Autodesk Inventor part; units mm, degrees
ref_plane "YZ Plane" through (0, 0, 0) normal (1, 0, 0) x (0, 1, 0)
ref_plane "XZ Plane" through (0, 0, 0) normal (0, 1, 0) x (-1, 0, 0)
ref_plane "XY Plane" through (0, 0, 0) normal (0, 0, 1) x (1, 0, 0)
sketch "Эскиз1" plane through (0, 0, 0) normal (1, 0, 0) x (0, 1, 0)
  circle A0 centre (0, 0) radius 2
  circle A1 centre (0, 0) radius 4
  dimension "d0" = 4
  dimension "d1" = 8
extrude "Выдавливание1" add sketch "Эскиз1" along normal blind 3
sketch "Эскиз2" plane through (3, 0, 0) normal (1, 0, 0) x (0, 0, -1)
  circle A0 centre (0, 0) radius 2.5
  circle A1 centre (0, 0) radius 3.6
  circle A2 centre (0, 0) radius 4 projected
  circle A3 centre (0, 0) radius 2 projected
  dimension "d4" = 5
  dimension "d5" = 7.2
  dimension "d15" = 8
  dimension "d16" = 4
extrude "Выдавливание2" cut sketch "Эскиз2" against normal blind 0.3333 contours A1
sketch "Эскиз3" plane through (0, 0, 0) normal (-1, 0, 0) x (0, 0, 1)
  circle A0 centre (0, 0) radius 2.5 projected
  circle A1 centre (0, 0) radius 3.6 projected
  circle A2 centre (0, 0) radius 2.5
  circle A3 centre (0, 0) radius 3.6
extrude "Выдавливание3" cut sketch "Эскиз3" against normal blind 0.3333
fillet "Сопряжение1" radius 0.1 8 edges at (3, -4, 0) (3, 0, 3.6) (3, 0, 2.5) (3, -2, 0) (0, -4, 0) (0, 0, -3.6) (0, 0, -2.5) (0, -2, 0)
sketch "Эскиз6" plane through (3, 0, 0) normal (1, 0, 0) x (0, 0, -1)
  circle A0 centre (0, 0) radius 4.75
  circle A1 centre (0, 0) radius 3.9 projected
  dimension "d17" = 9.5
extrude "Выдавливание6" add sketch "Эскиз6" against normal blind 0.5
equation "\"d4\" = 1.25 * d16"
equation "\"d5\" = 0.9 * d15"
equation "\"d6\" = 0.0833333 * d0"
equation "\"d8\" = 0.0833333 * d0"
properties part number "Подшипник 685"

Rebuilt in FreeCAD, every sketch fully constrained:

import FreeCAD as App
import Part
import Sketcher
from FreeCAD import Vector


def edges_at(feature, points):
    """Names of the edges that pass closest to the given points."""
    edges = feature.Shape.Edges
    near = lambda p: min(range(len(edges)), key=lambda i: edges[i].distToShape(Part.Vertex(*p))[0])
    return sorted({f"Edge{near(p) + 1}" for p in points})

doc = App.newDocument("Part")
body = doc.addObject("PartDesign::Body", "Body")

sketch1 = body.newObject("Sketcher::SketchObject", "Sketch")
sketch1.AttachmentSupport = (doc.getObject("YZ_Plane"), [""])
sketch1.MapMode = "FlatFace"
sketch1.addGeometry([
    Part.Circle(Vector(0, 0, 0), Vector(0, 0, 1), 4),
    Part.Circle(Vector(0, 0, 0), Vector(0, 0, 1), 2),
], False)
sketch1.addConstraint([
    Sketcher.Constraint("Coincident", 0, 3, -1, 1),
    Sketcher.Constraint("Coincident", 1, 3, -1, 1),
    Sketcher.Constraint("Diameter", 0, 8.0),
    Sketcher.Constraint("Diameter", 1, 4.0),
])
pad1 = body.newObject("PartDesign::Pad", "Pad")
pad1.Profile = sketch1
pad1.Length = 3

sketch2 = body.newObject("Sketcher::SketchObject", "Sketch001")
sketch2.AttachmentSupport = (doc.getObject("YZ_Plane"), [""])
sketch2.MapMode = "FlatFace"
sketch2.AttachmentOffset = App.Placement(Vector(0, 0, 3), App.Rotation())
sketch2.addGeometry([
    Part.Circle(Vector(0, 0, 0), Vector(0, 0, 1), 3.6),
    Part.Circle(Vector(0, 0, 0), Vector(0, 0, 1), 2.5),
], False)
sketch2.addConstraint([
    Sketcher.Constraint("Coincident", 0, 3, -1, 1),
    Sketcher.Constraint("Coincident", 1, 3, -1, 1),
    Sketcher.Constraint("Diameter", 1, 5.0),
    Sketcher.Constraint("Diameter", 0, 7.2),
])
pocket1 = body.newObject("PartDesign::Pocket", "Pocket")
pocket1.Profile = sketch2
pocket1.Length = 0.3333

sketch3 = body.newObject("Sketcher::SketchObject", "Sketch002")
sketch3.AttachmentSupport = (doc.getObject("YZ_Plane"), [""])
sketch3.MapMode = "FlatFace"
sketch3.addGeometry([
    Part.Circle(Vector(0, 0, 0), Vector(0, 0, 1), 3.6),
    Part.Circle(Vector(0, 0, 0), Vector(0, 0, 1), 2.5),
], False)
sketch3.addConstraint([
    Sketcher.Constraint("Coincident", 0, 3, -1, 1),
    Sketcher.Constraint("Coincident", 1, 3, -1, 1),
    Sketcher.Constraint("Diameter", 1, 5.0),
    Sketcher.Constraint("Diameter", 0, 7.2),
])
pocket2 = body.newObject("PartDesign::Pocket", "Pocket001")
pocket2.Profile = sketch3
pocket2.Length = 0.3333
pocket2.Reversed = True
doc.recompute()

fillet = body.newObject("PartDesign::Fillet", "Fillet")
fillet.Base = (pocket2, edges_at(pocket2, [
    (3, -4, 0),
    (3, 0, 3.6),
    (3, 0, 2.5),
    (3, -2, 0),
    (0, -4, 0),
    (0, 0, -3.6),
    (0, 0, -2.5),
    (0, -2, 0),
]))
fillet.Radius = 0.1

sketch4 = body.newObject("Sketcher::SketchObject", "Sketch003")
sketch4.AttachmentSupport = (doc.getObject("YZ_Plane"), [""])
sketch4.MapMode = "FlatFace"
sketch4.AttachmentOffset = App.Placement(Vector(0, 0, 3), App.Rotation())
sketch4.addGeometry([
    Part.Circle(Vector(0, 0, 0), Vector(0, 0, 1), 4.75),
    Part.Circle(Vector(0, 0, 0), Vector(0, 0, 1), 3.9),
], False)
sketch4.addConstraint([
    Sketcher.Constraint("Coincident", 0, 3, -1, 1),
    Sketcher.Constraint("Coincident", 1, 3, -1, 1),
    Sketcher.Constraint("Diameter", 0, 9.5),
    Sketcher.Constraint("Diameter", 1, 7.8),
])
pad2 = body.newObject("PartDesign::Pad", "Pad001")
pad2.Profile = sketch4
pad2.Length = 0.5
pad2.Reversed = True

doc.recompute()
